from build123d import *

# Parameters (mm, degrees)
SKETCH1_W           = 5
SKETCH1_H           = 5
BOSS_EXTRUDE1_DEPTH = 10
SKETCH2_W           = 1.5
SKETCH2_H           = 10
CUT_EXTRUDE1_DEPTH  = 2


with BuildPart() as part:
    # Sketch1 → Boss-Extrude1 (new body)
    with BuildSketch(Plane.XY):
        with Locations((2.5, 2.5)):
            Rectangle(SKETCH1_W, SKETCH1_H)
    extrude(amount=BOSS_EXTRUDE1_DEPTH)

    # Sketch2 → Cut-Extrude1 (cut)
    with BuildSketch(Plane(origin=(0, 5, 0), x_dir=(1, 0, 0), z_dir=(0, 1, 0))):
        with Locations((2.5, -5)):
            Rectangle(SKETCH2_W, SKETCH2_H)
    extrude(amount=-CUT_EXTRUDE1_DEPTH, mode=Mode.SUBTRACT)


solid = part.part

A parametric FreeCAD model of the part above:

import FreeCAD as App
import Part
import Sketcher
from FreeCAD import Vector
Q = App.Units.Quantity


def add_polygon(sketch, points):
    """Adds a closed chain of lines whose ends are joined by coincident constraints."""
    first, n = sketch.GeometryCount, len(points)
    for a, b in zip(points, points[1:] + points[:1]):
        sketch.addGeometry(Part.LineSegment(App.Vector(*a, 0), App.Vector(*b, 0)), False)
    for i in range(n):
        sketch.addConstraint(Sketcher.Constraint("Coincident", first + i, 2, first + (i + 1) % n, 1))

doc = App.newDocument("Part")
body = doc.addObject("PartDesign::Body", "Body")

sketch1 = body.newObject("Sketcher::SketchObject", "Sketch")
sketch1.AttachmentSupport = (doc.getObject("XY_Plane"), [""])
sketch1.MapMode = "FlatFace"
add_polygon(sketch1, [(0, 5), (0, 0), (5, 0), (5, 5)])
sketch1.addConstraint(Sketcher.Constraint("Vertical", 0))
sketch1.addConstraint(Sketcher.Constraint("Horizontal", 1))
sketch1.addConstraint(Sketcher.Constraint("Vertical", 2))
sketch1.addConstraint(Sketcher.Constraint("Horizontal", 3))
sketch1.addConstraint(Sketcher.Constraint("Coincident", 0, 2, -1, 1))
sketch1.addConstraint(Sketcher.Constraint("Equal", 3, 0))
sketch1.addConstraint(Sketcher.Constraint("DistanceX", 1, 1, 1, 2, Q("5 mm")))
pad1 = body.newObject("PartDesign::Pad", "Pad")
pad1.Profile = sketch1
pad1.Length = 10

sketch2 = body.newObject("Sketcher::SketchObject", "Sketch001")
sketch2.AttachmentSupport = (doc.getObject("XZ_Plane"), [""])
sketch2.MapMode = "FlatFace"
sketch2.AttachmentOffset = App.Placement(Vector(0, 0, -5), App.Rotation())
add_polygon(sketch2, [(1.8, 0), (1.8, 10), (3.2, 10), (3.2, 0)])
sketch2.addConstraint(Sketcher.Constraint("Vertical", 0))
sketch2.addConstraint(Sketcher.Constraint("Horizontal", 1))
sketch2.addConstraint(Sketcher.Constraint("Vertical", 2))
sketch2.addConstraint(Sketcher.Constraint("Horizontal", 3))
sketch2.addConstraint(Sketcher.Constraint("PointOnObject", 2, 2, -1))
sketch2.addConstraint(Sketcher.Constraint("DistanceY", 0, 1, 0, 2, Q("10 mm")))
sketch2.addConstraint(Sketcher.Constraint("DistanceX", 1, 1, 1, 2, Q("1.5 mm")))
sketch2.addConstraint(Sketcher.Constraint("DistanceX", -1, 1, 0, 2, Q("1.75 mm")))
pocket1 = body.newObject("PartDesign::Pocket", "Pocket")
pocket1.Profile = sketch2
pocket1.Length = 2
pocket1.Reversed = True

doc.recompute()
